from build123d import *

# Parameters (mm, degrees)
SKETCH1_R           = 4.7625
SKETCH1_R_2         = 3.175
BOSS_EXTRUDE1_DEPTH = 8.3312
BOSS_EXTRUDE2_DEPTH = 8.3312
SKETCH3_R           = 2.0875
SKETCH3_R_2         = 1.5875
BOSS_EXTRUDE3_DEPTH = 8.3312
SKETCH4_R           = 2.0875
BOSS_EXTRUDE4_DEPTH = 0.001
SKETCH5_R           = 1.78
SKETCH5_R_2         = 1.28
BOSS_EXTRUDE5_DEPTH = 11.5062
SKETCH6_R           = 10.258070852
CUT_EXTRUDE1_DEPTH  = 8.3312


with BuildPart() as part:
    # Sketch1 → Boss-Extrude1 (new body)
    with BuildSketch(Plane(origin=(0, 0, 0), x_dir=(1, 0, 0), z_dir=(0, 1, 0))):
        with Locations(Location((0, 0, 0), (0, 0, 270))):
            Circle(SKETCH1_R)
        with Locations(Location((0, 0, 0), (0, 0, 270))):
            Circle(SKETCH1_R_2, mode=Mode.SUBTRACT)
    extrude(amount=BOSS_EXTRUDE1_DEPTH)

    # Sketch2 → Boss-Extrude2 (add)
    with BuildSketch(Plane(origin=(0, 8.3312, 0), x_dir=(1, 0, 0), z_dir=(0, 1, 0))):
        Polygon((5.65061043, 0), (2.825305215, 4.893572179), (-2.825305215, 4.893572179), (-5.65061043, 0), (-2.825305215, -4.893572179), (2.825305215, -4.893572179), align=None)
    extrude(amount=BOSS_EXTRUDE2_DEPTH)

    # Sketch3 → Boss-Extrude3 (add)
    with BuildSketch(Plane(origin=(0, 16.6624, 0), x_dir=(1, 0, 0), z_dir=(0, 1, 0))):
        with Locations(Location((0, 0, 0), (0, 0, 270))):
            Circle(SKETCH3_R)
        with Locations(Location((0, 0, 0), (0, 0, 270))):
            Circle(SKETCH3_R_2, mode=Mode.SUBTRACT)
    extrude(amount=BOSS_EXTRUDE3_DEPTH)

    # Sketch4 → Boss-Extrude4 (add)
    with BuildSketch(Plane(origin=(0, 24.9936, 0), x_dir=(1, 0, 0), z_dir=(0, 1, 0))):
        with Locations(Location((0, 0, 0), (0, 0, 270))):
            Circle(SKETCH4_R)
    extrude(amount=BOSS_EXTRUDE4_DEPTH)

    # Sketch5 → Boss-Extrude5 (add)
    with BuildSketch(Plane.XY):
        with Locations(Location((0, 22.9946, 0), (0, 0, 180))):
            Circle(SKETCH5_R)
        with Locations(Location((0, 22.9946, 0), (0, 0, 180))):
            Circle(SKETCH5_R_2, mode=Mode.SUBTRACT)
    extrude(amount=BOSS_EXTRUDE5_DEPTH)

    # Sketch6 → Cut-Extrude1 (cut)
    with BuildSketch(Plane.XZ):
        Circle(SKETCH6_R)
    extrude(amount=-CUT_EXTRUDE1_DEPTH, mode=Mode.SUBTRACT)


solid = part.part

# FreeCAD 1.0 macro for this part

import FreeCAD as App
import Part
import Sketcher
from FreeCAD import Vector
Q = App.Units.Quantity

doc = App.newDocument("Part")
body = doc.addObject("PartDesign::Body", "Body")

# Sketch on XZ plane
sketch1 = doc.addObject("Sketcher::SketchObject", "Sketch")
body.addObject(sketch1)
sketch1.AttachmentSupport = (doc.XZ_Plane, [""])
sketch1.MapMode = "FlatFace"
sketch1.addGeometry([
    Part.Circle(Vector(0, 0, 0), Vector(0, 0, 1), 4.8),
    Part.Circle(Vector(0, 0, 0), Vector(0, 0, 1), 3.2),
], False)
sketch1.addConstraint([
    Sketcher.Constraint("Coincident", 0, 3, -1, 1),
    Sketcher.Constraint("Coincident", 1, 3, -1, 1),
    Sketcher.Constraint("Diameter", 1, Q("0.25 in")),
    Sketcher.Constraint("Diameter", 0, Q("0.375 in")),
])
pad1 = doc.addObject("PartDesign::Pad", "Pad")
body.addObject(pad1)
pad1.Profile = sketch1
pad1.Length = Q("0.328 in")
pad1.Reversed = True

# Sketch on XZ plane
sketch2 = doc.addObject("Sketcher::SketchObject", "Sketch001")
body.addObject(sketch2)
sketch2.AttachmentSupport = (doc.XZ_Plane, [""])
sketch2.MapMode = "FlatFace"
sketch2.AttachmentOffset = App.Placement(Vector(0, 0, -0.328 * 25.4), App.Rotation())
sketch2.addGeometry([
    Part.LineSegment(Vector(6, 0, 0), Vector(3, -5, 0)),  # 0
    Part.LineSegment(Vector(3, -5, 0), Vector(-3, -5, 0)),  # 1
    Part.LineSegment(Vector(-3, -5, 0), Vector(-6, 0, 0)),  # 2
    Part.LineSegment(Vector(-6, 0, 0), Vector(-3, 5, 0)),  # 3
    Part.LineSegment(Vector(-3, 5, 0), Vector(3, 5, 0)),  # 4
    Part.LineSegment(Vector(3, 5, 0), Vector(6, 0, 0)),  # 5
], False)
sketch2.addConstraint([
    Sketcher.Constraint("Coincident", 0, 2, 1, 1),
    Sketcher.Constraint("Coincident", 1, 2, 2, 1),
    Sketcher.Constraint("Coincident", 2, 2, 3, 1),
    Sketcher.Constraint("Coincident", 3, 2, 4, 1),
    Sketcher.Constraint("Coincident", 4, 2, 5, 1),
    Sketcher.Constraint("Coincident", 5, 2, 0, 1),
    Sketcher.Constraint("Horizontal", 1),
    Sketcher.Constraint("Horizontal", 4),
    Sketcher.Constraint("Symmetric", 0, 2, 3, 2, -1, 1),
    Sketcher.Constraint("Symmetric", 2, 2, 5, 2, -1, 1),
    Sketcher.Constraint("PointOnObject", 2, 2, -1),
    Sketcher.Constraint("Parallel", 2, 5),
    Sketcher.Constraint("Vertical", 1, 2, 3, 2),
    Sketcher.Constraint("Angle", 0, Q("-120 deg")),
    Sketcher.Constraint("DistanceX", 1, 2, 1, 1, 5.65061),
    Sketcher.Constraint("Distance", 0, 5.65061),
])
pad2 = doc.addObject("PartDesign::Pad", "Pad001")
body.addObject(pad2)
pad2.Profile = sketch2
pad2.Length = Q("0.328 in")
pad2.Reversed = True

# Sketch on XZ plane
sketch3 = doc.addObject("Sketcher::SketchObject", "Sketch002")
body.addObject(sketch3)
sketch3.AttachmentSupport = (doc.XZ_Plane, [""])
sketch3.MapMode = "FlatFace"
sketch3.AttachmentOffset = App.Placement(Vector(0, 0, -0.656 * 25.4), App.Rotation())
sketch3.addGeometry([
    Part.Circle(Vector(0, 0, 0), Vector(0, 0, 1), 2.1),
    Part.Circle(Vector(0, 0, 0), Vector(0, 0, 1), 1.6),
], False)
sketch3.addConstraint([
    Sketcher.Constraint("Coincident", 0, 3, -1, 1),
    Sketcher.Constraint("Coincident", 1, 3, -1, 1),
    Sketcher.Constraint("Diameter", 1, Q("0.125 in")),
    Sketcher.Constraint("Diameter", 0, 4.175),
])
pad3 = doc.addObject("PartDesign::Pad", "Pad002")
body.addObject(pad3)
pad3.Profile = sketch3
pad3.Length = Q("0.328 in")
pad3.Reversed = True

# Sketch on XZ plane
sketch4 = doc.addObject("Sketcher::SketchObject", "Sketch003")
body.addObject(sketch4)
sketch4.AttachmentSupport = (doc.XZ_Plane, [""])
sketch4.MapMode = "FlatFace"
sketch4.AttachmentOffset = App.Placement(Vector(0, 0, -0.984 * 25.4), App.Rotation())
sketch4.addGeometry(Part.Circle(Vector(0, 0, 0), Vector(0, 0, 1), 2.1), False)
sketch4.addConstraint([
    Sketcher.Constraint("Coincident", 0, 3, -1, 1),
    Sketcher.Constraint("Diameter", 0, 4.175),
])
pad4 = doc.addObject("PartDesign::Pad", "Pad003")
body.addObject(pad4)
pad4.Profile = sketch4
pad4.Length = 0.001
pad4.Reversed = True

# Sketch on XY plane
sketch5 = doc.addObject("Sketcher::SketchObject", "Sketch004")
body.addObject(sketch5)
sketch5.AttachmentSupport = (doc.XY_Plane, [""])
sketch5.MapMode = "FlatFace"
sketch5.addGeometry([
    Part.Circle(Vector(0, 23, 0), Vector(0, 0, 1), 1.8),
    Part.Circle(Vector(0, 23, 0), Vector(0, 0, 1), 1.3),
], False)
sketch5.addConstraint([
    Sketcher.Constraint("Coincident", 1, 3, 0, 3),
    Sketcher.Constraint("PointOnObject", 0, 3, -2),
    Sketcher.Constraint("Diameter", 0, 3.56),
    Sketcher.Constraint("Diameter", 1, 2.56),
    Sketcher.Constraint("DistanceY", -1, 1, 0, 3, 22.9946),
])
pad5 = doc.addObject("PartDesign::Pad", "Pad004")
body.addObject(pad5)
pad5.Profile = sketch5
pad5.Length = Q("0.453 in")

# Sketch on XZ plane
sketch6 = doc.addObject("Sketcher::SketchObject", "Sketch005")
body.addObject(sketch6)
sketch6.AttachmentSupport = (doc.XZ_Plane, [""])
sketch6.MapMode = "FlatFace"
sketch6.addGeometry(Part.Circle(Vector(0, 0, 0), Vector(0, 0, 1), 10), False)
sketch6.addConstraint([
    Sketcher.Constraint("Coincident", 0, 3, -1, 1),
    Sketcher.Constraint("Diameter", 0, 20.516142),
])
pocket1 = doc.addObject("PartDesign::Pocket", "Pocket")
body.addObject(pocket1)
pocket1.Profile = sketch6
pocket1.Length = Q("0.328 in")

doc.recompute()
